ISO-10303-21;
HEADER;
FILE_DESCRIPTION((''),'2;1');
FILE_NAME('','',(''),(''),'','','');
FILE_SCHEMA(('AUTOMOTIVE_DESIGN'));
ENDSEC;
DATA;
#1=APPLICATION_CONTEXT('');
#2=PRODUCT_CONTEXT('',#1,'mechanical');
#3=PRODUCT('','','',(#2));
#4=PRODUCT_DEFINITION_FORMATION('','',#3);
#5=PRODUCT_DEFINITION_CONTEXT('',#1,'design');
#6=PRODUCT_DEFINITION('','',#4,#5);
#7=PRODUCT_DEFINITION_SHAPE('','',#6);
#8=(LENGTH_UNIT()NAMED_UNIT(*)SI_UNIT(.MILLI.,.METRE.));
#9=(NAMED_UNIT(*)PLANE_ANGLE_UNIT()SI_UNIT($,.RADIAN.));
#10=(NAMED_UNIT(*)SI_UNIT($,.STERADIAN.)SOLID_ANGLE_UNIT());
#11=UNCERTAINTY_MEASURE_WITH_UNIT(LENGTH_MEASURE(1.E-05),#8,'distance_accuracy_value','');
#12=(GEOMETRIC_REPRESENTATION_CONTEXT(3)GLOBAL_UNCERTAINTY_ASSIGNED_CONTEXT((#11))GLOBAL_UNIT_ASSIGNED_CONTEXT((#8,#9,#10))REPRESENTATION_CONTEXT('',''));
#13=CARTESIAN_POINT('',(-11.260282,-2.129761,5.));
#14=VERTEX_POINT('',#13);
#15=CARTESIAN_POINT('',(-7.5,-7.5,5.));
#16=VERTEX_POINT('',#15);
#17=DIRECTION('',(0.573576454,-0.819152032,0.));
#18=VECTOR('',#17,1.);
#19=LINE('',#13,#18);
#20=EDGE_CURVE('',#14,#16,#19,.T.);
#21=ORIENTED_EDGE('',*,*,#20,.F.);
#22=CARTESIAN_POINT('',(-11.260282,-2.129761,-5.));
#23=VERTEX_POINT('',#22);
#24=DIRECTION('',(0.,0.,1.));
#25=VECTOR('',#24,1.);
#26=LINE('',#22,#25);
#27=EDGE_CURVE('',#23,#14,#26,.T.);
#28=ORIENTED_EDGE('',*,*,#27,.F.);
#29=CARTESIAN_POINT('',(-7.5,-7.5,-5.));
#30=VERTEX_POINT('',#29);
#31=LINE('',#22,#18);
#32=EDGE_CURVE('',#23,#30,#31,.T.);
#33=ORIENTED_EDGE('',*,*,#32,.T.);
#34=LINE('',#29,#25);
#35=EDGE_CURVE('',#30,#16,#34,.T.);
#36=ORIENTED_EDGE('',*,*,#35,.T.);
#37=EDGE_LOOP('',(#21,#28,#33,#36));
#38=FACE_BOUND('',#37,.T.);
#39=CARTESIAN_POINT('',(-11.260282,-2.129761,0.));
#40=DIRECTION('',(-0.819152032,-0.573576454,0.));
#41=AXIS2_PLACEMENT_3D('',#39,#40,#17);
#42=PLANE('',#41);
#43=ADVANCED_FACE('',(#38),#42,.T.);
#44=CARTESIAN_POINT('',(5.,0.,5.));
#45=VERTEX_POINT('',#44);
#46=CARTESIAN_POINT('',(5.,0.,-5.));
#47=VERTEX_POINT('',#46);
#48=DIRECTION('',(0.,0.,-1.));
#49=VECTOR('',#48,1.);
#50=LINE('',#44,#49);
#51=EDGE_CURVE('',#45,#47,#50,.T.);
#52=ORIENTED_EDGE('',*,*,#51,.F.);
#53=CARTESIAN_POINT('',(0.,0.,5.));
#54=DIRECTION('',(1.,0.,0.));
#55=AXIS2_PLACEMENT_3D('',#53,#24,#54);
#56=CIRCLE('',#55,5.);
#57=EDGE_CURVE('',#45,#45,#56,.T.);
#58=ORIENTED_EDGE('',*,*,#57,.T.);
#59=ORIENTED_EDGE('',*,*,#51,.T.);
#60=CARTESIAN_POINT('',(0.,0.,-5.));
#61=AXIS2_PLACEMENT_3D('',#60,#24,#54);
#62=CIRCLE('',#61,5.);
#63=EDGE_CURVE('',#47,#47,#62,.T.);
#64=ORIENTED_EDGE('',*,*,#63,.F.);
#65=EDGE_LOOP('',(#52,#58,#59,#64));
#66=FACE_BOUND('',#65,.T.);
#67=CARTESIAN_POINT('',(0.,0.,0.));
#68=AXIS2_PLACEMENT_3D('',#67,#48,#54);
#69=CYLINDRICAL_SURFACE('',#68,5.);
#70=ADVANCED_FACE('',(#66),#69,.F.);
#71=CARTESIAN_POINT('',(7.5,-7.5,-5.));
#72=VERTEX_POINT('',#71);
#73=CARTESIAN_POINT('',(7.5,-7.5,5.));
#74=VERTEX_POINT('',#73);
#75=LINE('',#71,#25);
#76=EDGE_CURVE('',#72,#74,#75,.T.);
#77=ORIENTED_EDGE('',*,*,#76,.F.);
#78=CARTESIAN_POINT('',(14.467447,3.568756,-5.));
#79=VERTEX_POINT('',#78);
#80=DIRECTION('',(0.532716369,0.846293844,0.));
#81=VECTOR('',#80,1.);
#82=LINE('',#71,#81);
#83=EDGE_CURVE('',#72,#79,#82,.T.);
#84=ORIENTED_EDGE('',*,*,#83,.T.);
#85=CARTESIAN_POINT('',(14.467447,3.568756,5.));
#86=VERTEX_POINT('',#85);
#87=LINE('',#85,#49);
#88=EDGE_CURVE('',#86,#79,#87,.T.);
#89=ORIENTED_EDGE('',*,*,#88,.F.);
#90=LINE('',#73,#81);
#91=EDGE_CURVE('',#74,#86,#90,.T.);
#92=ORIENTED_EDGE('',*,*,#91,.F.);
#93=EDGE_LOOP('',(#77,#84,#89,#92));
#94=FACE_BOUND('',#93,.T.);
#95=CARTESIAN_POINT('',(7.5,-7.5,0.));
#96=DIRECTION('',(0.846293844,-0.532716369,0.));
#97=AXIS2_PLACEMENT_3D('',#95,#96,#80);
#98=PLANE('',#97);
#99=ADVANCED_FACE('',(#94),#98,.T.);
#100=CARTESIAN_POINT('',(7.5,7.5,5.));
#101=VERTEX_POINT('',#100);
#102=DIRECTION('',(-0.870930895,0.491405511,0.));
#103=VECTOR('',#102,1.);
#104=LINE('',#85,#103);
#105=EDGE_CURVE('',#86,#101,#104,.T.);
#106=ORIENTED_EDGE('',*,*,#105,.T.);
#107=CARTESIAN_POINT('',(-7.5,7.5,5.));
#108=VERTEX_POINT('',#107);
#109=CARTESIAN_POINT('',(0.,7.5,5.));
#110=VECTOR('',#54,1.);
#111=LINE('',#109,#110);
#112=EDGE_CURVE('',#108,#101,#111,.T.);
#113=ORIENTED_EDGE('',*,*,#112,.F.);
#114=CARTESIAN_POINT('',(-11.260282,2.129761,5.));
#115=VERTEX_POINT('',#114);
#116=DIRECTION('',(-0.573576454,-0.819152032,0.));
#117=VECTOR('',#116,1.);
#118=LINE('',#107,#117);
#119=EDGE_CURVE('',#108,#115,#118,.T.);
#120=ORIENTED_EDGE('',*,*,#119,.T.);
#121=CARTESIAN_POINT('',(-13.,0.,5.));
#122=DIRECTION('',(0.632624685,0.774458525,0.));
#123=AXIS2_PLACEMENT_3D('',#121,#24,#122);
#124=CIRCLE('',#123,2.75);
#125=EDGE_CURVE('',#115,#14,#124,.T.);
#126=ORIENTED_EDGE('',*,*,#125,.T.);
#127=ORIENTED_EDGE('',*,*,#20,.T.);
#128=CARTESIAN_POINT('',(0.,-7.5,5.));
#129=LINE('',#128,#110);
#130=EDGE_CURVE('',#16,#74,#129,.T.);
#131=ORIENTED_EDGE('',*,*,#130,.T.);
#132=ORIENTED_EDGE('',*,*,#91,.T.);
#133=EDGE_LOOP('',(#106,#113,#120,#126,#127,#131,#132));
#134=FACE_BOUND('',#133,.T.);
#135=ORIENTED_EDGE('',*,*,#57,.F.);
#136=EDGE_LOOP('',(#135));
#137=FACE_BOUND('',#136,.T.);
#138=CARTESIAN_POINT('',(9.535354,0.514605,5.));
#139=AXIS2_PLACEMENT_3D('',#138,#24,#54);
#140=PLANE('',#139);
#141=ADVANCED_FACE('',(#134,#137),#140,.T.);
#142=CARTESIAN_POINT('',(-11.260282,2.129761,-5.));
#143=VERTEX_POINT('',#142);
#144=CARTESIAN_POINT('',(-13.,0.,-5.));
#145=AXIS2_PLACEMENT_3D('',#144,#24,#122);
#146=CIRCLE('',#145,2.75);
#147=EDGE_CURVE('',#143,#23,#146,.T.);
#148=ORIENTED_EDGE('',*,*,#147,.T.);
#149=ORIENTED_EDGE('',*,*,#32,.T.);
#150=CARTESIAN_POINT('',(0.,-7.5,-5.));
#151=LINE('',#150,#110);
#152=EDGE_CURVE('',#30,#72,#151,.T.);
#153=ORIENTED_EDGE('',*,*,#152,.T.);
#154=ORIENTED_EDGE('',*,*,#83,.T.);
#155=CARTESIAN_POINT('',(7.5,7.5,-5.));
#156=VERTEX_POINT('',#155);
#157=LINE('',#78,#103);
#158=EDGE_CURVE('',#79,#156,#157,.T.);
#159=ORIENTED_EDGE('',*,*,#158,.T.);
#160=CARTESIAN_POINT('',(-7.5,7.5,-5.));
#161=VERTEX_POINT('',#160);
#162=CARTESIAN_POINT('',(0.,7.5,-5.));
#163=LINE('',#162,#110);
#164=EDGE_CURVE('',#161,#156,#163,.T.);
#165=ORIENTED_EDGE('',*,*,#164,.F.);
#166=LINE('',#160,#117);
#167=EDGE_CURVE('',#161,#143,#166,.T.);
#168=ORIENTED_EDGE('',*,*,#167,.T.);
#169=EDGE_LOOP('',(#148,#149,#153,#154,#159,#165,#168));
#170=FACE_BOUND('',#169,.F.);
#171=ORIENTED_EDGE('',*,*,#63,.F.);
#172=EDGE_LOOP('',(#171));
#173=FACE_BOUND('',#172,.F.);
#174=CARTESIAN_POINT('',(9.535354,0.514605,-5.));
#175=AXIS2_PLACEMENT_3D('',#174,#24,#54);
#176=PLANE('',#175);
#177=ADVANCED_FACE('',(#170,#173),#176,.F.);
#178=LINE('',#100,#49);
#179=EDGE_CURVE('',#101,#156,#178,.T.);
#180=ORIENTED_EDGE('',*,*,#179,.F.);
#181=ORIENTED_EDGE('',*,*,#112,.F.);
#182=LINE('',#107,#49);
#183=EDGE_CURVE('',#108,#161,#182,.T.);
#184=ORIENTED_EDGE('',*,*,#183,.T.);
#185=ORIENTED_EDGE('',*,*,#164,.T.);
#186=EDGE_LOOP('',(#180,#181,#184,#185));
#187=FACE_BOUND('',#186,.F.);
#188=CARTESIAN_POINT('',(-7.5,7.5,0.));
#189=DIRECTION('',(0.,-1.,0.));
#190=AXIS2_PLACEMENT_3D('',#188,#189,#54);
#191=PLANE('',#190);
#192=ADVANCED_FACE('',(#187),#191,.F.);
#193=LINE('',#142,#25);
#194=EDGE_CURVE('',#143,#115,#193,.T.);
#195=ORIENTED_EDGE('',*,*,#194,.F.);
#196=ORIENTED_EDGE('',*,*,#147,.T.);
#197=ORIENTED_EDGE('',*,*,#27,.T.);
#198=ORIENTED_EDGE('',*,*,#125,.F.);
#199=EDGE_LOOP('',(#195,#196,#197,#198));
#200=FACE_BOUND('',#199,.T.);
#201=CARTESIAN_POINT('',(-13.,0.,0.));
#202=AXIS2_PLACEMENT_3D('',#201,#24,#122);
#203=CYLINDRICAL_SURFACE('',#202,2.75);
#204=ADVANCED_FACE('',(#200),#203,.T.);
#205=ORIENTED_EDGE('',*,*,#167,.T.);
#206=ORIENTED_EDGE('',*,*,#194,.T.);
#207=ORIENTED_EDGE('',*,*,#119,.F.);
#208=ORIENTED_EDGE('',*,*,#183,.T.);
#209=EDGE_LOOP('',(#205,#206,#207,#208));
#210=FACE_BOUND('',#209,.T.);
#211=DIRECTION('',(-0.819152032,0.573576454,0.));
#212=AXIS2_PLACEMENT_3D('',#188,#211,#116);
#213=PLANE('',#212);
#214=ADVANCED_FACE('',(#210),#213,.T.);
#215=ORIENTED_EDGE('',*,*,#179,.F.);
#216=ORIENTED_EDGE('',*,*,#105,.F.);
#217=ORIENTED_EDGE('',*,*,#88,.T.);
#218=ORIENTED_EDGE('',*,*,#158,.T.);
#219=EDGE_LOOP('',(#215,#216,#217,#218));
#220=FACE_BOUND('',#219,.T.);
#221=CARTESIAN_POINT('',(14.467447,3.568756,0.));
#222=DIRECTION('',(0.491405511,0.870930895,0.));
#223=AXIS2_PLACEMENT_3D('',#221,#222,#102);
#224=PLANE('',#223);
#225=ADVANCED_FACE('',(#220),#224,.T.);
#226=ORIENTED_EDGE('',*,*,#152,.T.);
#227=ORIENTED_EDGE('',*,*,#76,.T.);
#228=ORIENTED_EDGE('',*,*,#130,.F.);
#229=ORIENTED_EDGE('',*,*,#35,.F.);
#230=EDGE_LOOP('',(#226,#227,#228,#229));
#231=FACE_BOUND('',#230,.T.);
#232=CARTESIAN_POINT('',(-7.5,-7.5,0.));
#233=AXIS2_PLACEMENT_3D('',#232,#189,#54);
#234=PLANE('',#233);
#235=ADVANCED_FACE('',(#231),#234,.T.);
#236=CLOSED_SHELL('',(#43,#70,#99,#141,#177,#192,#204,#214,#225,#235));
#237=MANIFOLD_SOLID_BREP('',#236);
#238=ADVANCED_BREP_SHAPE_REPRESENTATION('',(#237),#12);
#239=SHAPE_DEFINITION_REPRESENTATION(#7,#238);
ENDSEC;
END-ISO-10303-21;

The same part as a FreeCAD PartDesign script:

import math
import FreeCAD as App
import Part
import Sketcher

V = App.Vector
Q = App.Units.Quantity


def add_polygon(sketch, points):
    """Adds a closed chain of lines whose ends are joined by coincident constraints."""
    first, n = sketch.GeometryCount, len(points)
    for a, b in zip(points, points[1:] + points[:1]):
        sketch.addGeometry(Part.LineSegment(App.Vector(*a, 0), App.Vector(*b, 0)), False)
    for i in range(n):
        sketch.addConstraint(Sketcher.Constraint("Coincident", first + i, 2, first + (i + 1) % n, 1))

doc = App.newDocument("Part")
body = doc.addObject("PartDesign::Body", "Body")

sketch1 = doc.addObject("Sketcher::SketchObject", "Sketch")
body.addObject(sketch1)
sketch1.AttachmentSupport = (doc.XY_Plane, [""])
sketch1.MapMode = "FlatFace"
add_polygon(sketch1, [(-7.5, 7.5), (-7.5, -7.5), (7.5, -7.5), (7.5, 7.5)])
sketch1.addGeometry(Part.Circle(V(0, 0, 0), V(0, 0, 1), 5), False)
sketch1.addConstraint(Sketcher.Constraint("Vertical", 0))
sketch1.addConstraint(Sketcher.Constraint("Horizontal", 1))
sketch1.addConstraint(Sketcher.Constraint("Vertical", 2))
sketch1.addConstraint(Sketcher.Constraint("Horizontal", 3))
sketch1.addConstraint(Sketcher.Constraint("Coincident", 4, 3, -1, 1))
sketch1.addConstraint(Sketcher.Constraint("Symmetric", 0, 2, 2, 2, -1, 1))
sketch1.addConstraint(Sketcher.Constraint("Equal", 3, 0))
sketch1.addConstraint(Sketcher.Constraint("Diameter", 4, Q("10 mm")))
sketch1.addConstraint(Sketcher.Constraint("DistanceX", 1, 1, 1, 2, Q("15 mm")))
pad1 = doc.addObject("PartDesign::Pad", "Pad")
body.addObject(pad1)
pad1.Profile = sketch1
pad1.Length = 10
pad1.Midplane = True

sketch2 = doc.addObject("Sketcher::SketchObject", "Sketch001")
body.addObject(sketch2)
sketch2.AttachmentSupport = (doc.XY_Plane, [""])
sketch2.MapMode = "FlatFace"
sketch2.addGeometry(Part.LineSegment(V(-7.5, 7.5, 0), V(-11.260282, 2.129761, 0)), False)
sketch2.addGeometry(Part.ArcOfCircle(Part.Circle(V(-13, 0, 0), V(0, 0, 1), 2.75), math.radians(50.755966), math.radians(309.244034)), False)
sketch2.addGeometry(Part.LineSegment(V(-11.260282, -2.129761, 0), V(-7.5, -7.5, 0)), False)
sketch2.addGeometry(Part.LineSegment(V(-7.5, -7.5, 0), V(-7.5, 7.5, 0)), False)
sketch2.addConstraint(Sketcher.Constraint("Coincident", 0, 2, 1, 1))
sketch2.addConstraint(Sketcher.Constraint("Coincident", 1, 2, 2, 1))
sketch2.addConstraint(Sketcher.Constraint("Coincident", 2, 2, 3, 1))
sketch2.addConstraint(Sketcher.Constraint("Coincident", 3, 2, 0, 1))
sketch2.addConstraint(Sketcher.Constraint("Vertical", 3))
sketch2.addConstraint(Sketcher.Constraint("Symmetric", 0, 2, 1, 2, -1))
sketch2.addConstraint(Sketcher.Constraint("Equal", 0, 2))
sketch2.addConstraint(Sketcher.Constraint("DistanceY", 3, 1, 3, 2, Q("15 mm")))
sketch2.addConstraint(Sketcher.Constraint("Angle", 0, Q("-125.000001 deg")))
sketch2.addConstraint(Sketcher.Constraint("Radius", 1, Q("2.75 mm")))
sketch2.addConstraint(Sketcher.Constraint("DistanceX", 1, 3, -1, 1, Q("13 mm")))
sketch2.addConstraint(Sketcher.Constraint("DistanceX", 2, 2, -1, 1, Q("7.5 mm")))
pad2 = doc.addObject("PartDesign::Pad", "Pad001")
body.addObject(pad2)
pad2.Profile = sketch2
pad2.Length = 10
pad2.Midplane = True

sketch3 = doc.addObject("Sketcher::SketchObject", "Sketch002")
body.addObject(sketch3)
sketch3.AttachmentSupport = (doc.XY_Plane, [""])
sketch3.MapMode = "FlatFace"
add_polygon(sketch3, [(14.467447, 3.568756), (7.5, 7.5), (7.5, -7.5)])
sketch3.addConstraint(Sketcher.Constraint("Vertical", 1))
sketch3.addConstraint(Sketcher.Constraint("DistanceY", 1, 2, 1, 1, Q("15 mm")))
sketch3.addConstraint(Sketcher.Constraint("Distance", 0, Q("8 mm")))
sketch3.addConstraint(Sketcher.Constraint("DistanceX", -1, 1, 0, 2, Q("7.5 mm")))
sketch3.addConstraint(Sketcher.Constraint("DistanceY", -1, 1, 0, 2, Q("7.5 mm")))
sketch3.addConstraint(Sketcher.Constraint("Distance", 2, Q("13.079093 mm")))
pad3 = doc.addObject("PartDesign::Pad", "Pad002")
body.addObject(pad3)
pad3.Profile = sketch3
pad3.Length = 10
pad3.Midplane = True

doc.recompute()
